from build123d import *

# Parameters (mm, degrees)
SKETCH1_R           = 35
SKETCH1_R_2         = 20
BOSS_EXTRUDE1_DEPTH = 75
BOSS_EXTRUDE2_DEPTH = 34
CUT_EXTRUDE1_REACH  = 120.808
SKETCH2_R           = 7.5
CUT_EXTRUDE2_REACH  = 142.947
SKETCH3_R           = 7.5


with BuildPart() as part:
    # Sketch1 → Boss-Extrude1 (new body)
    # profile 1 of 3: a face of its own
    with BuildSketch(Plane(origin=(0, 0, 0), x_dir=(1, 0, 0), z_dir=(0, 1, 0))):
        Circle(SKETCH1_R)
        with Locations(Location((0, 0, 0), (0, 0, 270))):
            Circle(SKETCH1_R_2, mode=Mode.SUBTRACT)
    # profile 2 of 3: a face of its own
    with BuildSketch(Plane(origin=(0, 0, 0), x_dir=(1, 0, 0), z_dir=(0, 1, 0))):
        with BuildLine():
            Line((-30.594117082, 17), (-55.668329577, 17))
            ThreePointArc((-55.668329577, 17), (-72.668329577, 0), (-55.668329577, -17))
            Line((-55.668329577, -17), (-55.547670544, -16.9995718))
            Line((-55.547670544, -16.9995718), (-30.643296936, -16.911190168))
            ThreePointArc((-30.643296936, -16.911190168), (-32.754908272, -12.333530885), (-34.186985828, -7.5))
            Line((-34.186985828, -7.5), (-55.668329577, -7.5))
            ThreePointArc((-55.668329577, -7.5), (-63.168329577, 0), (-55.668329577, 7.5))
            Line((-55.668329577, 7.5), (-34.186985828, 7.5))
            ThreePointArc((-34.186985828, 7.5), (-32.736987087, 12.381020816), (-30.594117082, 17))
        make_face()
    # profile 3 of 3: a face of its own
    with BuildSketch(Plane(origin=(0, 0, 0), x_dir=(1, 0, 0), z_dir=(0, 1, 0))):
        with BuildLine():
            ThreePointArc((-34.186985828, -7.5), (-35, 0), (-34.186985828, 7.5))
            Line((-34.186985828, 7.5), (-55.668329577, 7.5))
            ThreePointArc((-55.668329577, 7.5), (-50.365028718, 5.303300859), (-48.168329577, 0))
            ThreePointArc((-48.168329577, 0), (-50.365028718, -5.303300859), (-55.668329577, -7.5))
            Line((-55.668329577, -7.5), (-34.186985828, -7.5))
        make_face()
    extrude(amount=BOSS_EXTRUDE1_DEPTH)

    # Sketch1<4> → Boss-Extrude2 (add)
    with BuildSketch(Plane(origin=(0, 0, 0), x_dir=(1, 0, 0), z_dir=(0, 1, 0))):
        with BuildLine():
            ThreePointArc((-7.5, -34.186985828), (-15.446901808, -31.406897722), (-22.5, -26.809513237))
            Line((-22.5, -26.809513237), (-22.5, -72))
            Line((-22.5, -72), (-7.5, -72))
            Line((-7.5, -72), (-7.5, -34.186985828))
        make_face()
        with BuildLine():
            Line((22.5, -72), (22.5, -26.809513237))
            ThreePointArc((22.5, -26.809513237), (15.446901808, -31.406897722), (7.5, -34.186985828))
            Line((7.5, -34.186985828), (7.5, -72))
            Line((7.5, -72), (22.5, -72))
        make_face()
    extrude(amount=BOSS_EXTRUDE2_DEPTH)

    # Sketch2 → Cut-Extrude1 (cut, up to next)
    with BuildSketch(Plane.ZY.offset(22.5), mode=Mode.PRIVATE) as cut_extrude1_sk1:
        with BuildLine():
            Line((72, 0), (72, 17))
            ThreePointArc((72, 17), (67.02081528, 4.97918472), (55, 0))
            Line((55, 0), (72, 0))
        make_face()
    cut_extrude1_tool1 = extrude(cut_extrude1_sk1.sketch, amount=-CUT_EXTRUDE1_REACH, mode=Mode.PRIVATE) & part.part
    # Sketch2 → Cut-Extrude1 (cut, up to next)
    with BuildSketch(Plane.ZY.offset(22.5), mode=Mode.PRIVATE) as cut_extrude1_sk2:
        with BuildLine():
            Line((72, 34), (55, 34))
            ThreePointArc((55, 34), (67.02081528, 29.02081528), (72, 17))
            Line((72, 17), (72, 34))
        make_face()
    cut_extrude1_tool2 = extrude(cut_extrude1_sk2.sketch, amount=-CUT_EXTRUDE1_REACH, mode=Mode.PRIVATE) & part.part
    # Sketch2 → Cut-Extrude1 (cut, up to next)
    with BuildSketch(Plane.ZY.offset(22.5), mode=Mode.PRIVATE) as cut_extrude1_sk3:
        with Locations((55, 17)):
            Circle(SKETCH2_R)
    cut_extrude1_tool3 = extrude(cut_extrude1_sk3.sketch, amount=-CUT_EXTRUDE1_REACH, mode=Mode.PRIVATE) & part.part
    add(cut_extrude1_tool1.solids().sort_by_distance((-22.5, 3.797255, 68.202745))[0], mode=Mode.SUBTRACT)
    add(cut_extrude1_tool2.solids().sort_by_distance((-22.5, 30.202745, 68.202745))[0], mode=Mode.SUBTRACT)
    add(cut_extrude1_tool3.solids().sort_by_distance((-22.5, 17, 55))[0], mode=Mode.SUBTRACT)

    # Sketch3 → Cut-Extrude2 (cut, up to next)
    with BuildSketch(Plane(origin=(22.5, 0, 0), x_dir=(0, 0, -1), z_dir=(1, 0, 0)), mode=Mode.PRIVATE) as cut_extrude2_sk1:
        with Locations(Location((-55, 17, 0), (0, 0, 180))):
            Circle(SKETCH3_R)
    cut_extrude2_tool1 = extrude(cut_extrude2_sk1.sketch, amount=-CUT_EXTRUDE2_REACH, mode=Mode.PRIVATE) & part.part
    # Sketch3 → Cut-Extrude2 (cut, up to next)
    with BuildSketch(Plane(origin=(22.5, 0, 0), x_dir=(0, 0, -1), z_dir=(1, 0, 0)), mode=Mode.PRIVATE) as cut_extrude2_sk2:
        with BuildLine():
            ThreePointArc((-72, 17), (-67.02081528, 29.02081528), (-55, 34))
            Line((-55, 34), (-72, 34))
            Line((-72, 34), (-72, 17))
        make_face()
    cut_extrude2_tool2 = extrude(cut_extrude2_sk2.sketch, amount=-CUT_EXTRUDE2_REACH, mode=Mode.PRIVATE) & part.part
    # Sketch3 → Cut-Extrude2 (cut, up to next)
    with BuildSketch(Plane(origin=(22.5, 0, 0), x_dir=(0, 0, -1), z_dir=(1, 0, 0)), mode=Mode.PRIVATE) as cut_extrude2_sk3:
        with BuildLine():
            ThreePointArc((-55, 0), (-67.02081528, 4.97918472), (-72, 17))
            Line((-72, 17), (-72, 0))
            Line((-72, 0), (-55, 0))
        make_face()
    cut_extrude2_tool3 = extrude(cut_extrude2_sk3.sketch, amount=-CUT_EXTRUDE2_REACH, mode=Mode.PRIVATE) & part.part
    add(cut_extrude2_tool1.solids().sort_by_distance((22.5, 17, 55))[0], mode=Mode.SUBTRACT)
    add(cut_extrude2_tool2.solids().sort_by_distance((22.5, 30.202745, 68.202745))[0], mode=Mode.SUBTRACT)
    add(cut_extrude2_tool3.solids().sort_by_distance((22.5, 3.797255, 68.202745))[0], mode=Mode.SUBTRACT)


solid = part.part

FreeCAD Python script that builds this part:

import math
import FreeCAD as App
import Part
import Sketcher

V = App.Vector

doc = App.newDocument("Part")
body = doc.addObject("PartDesign::Body", "Body")

sketch1 = doc.addObject("Sketcher::SketchObject", "Sketch")
body.addObject(sketch1)
sketch1.AttachmentSupport = (doc.XZ_Plane, [""])
sketch1.MapMode = "FlatFace"
sketch1.addGeometry([
    Part.LineSegment(V(-30.59, -17, 0), V(-55.67, -17, 0)),
    Part.ArcOfCircle(Part.Circle(V(-55.67, 0, 0), V(0, 0, 1), 17), math.radians(90), math.radians(270)),
    Part.LineSegment(V(-55.67, 17, 0), V(-55.55, 17, 0)),
    Part.LineSegment(V(-55.55, 17, 0), V(-30.64, 16.91, 0)),
    Part.ArcOfCircle(Part.Circle(V(0, 0, 0), V(0, 0, 1), 35), math.radians(-151), math.radians(151)),
    Part.Circle(V(0, 0, 0), V(0, 0, 1), 20),
    Part.ArcOfCircle(Part.Circle(V(-55.67, 0, 0), V(0, 0, 1), 7.5), math.radians(90), math.radians(270)),
    Part.ArcOfCircle(Part.Circle(V(-55.67, 0, 0), V(0, 0, 1), 7.5), math.radians(-90), math.radians(0)),
    Part.ArcOfCircle(Part.Circle(V(-55.67, 0, 0), V(0, 0, 1), 7.5), math.radians(0), math.radians(90)),
], False)
sketch1.addConstraint([
    Sketcher.Constraint("Tangent", 0, 2, 1, 2),
    Sketcher.Constraint("Coincident", 1, 1, 2, 1),
    Sketcher.Constraint("Coincident", 2, 2, 3, 1),
    Sketcher.Constraint("Coincident", 3, 2, 4, 2),
    Sketcher.Constraint("Coincident", 4, 1, 0, 1),
    Sketcher.Constraint("Tangent", 6, 2, 7, 1),
    Sketcher.Constraint("Tangent", 7, 2, 8, 1),
    Sketcher.Constraint("Tangent", 8, 2, 6, 1),
    Sketcher.Constraint("Horizontal", 0),
    Sketcher.Constraint("Coincident", 4, 3, -1, 1),
    Sketcher.Constraint("Coincident", 5, 3, -1, 1),
    Sketcher.Constraint("Coincident", 6, 3, 1, 3),
    Sketcher.Constraint("Symmetric", 0, 2, 1, 1, -1),
    Sketcher.Constraint("PointOnObject", 7, 2, -1),
    Sketcher.Constraint("Parallel", 2, 3),
    Sketcher.Constraint("Vertical", 1, 1, 6, 2),
    Sketcher.Constraint("Vertical", 6, 2, 8, 2),
    Sketcher.Constraint("Diameter", 5, 40.0),
    Sketcher.Constraint("Radius", 1, 17.0),
    Sketcher.Constraint("Radius", 4, 35.0),
    Sketcher.Constraint("Radius", 6, 7.5),
    Sketcher.Constraint("Distance", 2, 0.12066),
    Sketcher.Constraint("Distance", 3, 24.90453),
    Sketcher.Constraint("DistanceX", 0, 2, 0, 1, 25.074212),
])
pad1 = doc.addObject("PartDesign::Pad", "Pad")
body.addObject(pad1)
pad1.Profile = sketch1
pad1.Length = 75
pad1.Reversed = True

sketch2 = doc.addObject("Sketcher::SketchObject", "Sketch001")
body.addObject(sketch2)
sketch2.AttachmentSupport = (doc.XZ_Plane, [""])
sketch2.MapMode = "FlatFace"
sketch2.addGeometry([
    Part.ArcOfCircle(Part.Circle(V(0, 0, 0), V(0, 0, 1), 35), math.radians(102), math.radians(130)),
    Part.LineSegment(V(-22, 27, 0), V(-22, 72, 0)),
    Part.LineSegment(V(-22, 72, 0), V(-8, 72, 0)),
    Part.LineSegment(V(-8, 72, 0), V(-8, 34, 0)),
    Part.LineSegment(V(22, 72, 0), V(22, 27, 0)),
    Part.ArcOfCircle(Part.Circle(V(0, 0, 0), V(0, 0, 1), 35), math.radians(50), math.radians(78)),
    Part.LineSegment(V(8, 34, 0), V(8, 72, 0)),
    Part.LineSegment(V(8, 72, 0), V(22, 72, 0)),
], False)
sketch2.addConstraint([
    Sketcher.Constraint("Coincident", 0, 2, 1, 1),
    Sketcher.Constraint("Coincident", 1, 2, 2, 1),
    Sketcher.Constraint("Coincident", 2, 2, 3, 1),
    Sketcher.Constraint("Coincident", 3, 2, 0, 1),
    Sketcher.Constraint("Coincident", 4, 2, 5, 1),
    Sketcher.Constraint("Coincident", 5, 2, 6, 1),
    Sketcher.Constraint("Coincident", 6, 2, 7, 1),
    Sketcher.Constraint("Coincident", 7, 2, 4, 1),
    Sketcher.Constraint("Vertical", 1),
    Sketcher.Constraint("Horizontal", 2),
    Sketcher.Constraint("Vertical", 3),
    Sketcher.Constraint("Vertical", 4),
    Sketcher.Constraint("Vertical", 6),
    Sketcher.Constraint("Horizontal", 7),
    Sketcher.Constraint("Coincident", 0, 3, -1, 1),
    Sketcher.Constraint("Coincident", 5, 3, -1, 1),
    Sketcher.Constraint("Equal", 0, 5),
    Sketcher.Constraint("Symmetric", 2, 2, 6, 2, -2),
    Sketcher.Constraint("Horizontal", 0, 2, 4, 2),
    Sketcher.Constraint("Radius", 0, 35.0),
    Sketcher.Constraint("DistanceX", 2, 1, 2, 2, 15.0),
    Sketcher.Constraint("DistanceY", -1, 1, 1, 2, 72.0),
    Sketcher.Constraint("DistanceX", 3, 2, 4, 2, 30.0),
])
pad2 = doc.addObject("PartDesign::Pad", "Pad001")
body.addObject(pad2)
pad2.Profile = sketch2
pad2.Length = 34
pad2.Reversed = True

sketch3 = doc.addObject("Sketcher::SketchObject", "Sketch002")
body.addObject(sketch3)
sketch3.AttachmentSupport = (doc.YZ_Plane, [""])
sketch3.MapMode = "FlatFace"
sketch3.AttachmentOffset = App.Placement(V(0, 0, -22.5), App.Rotation())
sketch3.addGeometry([
    Part.LineSegment(V(0, 72, 0), V(17, 72, 0)),
    Part.ArcOfCircle(Part.Circle(V(17, 55, 0), V(0, 0, 1), 17), math.radians(90), math.radians(180)),
    Part.LineSegment(V(0, 55, 0), V(0, 72, 0)),
], False)
sketch3.addConstraint([
    Sketcher.Constraint("Tangent", 0, 2, 1, 1),
    Sketcher.Constraint("Tangent", 1, 2, 2, 1),
    Sketcher.Constraint("Coincident", 2, 2, 0, 1),
    Sketcher.Constraint("Horizontal", 0),
    Sketcher.Constraint("Vertical", 2),
    Sketcher.Constraint("PointOnObject", 1, 2, -2),
    Sketcher.Constraint("Radius", 1, 17.0),
    Sketcher.Constraint("DistanceY", -1, 1, 1, 3, 55.0),
])
pocket1 = doc.addObject("PartDesign::Pocket", "Pocket")
body.addObject(pocket1)
pocket1.Profile = sketch3
pocket1.Type = "UpToFirst"
pocket1.Reversed = True

sketch4 = doc.addObject("Sketcher::SketchObject", "Sketch003")
body.addObject(sketch4)
sketch4.AttachmentSupport = (doc.YZ_Plane, [""])
sketch4.MapMode = "FlatFace"
sketch4.AttachmentOffset = App.Placement(V(0, 0, -22.5), App.Rotation())
sketch4.addGeometry([
    Part.LineSegment(V(34, 72, 0), V(34, 55, 0)),
    Part.ArcOfCircle(Part.Circle(V(17, 55, 0), V(0, 0, 1), 17), math.radians(0), math.radians(90)),
    Part.LineSegment(V(17, 72, 0), V(34, 72, 0)),
], False)
sketch4.addConstraint([
    Sketcher.Constraint("Tangent", 0, 2, 1, 1),
    Sketcher.Constraint("Tangent", 1, 2, 2, 1),
    Sketcher.Constraint("Coincident", 2, 2, 0, 1),
    Sketcher.Constraint("Vertical", 0),
    Sketcher.Constraint("Horizontal", 2),
    Sketcher.Constraint("Radius", 1, 17.0),
    Sketcher.Constraint("DistanceX", -1, 1, 1, 3, 17.0),
    Sketcher.Constraint("DistanceY", -1, 1, 1, 3, 55.0),
])
pocket2 = doc.addObject("PartDesign::Pocket", "Pocket001")
body.addObject(pocket2)
pocket2.Profile = sketch4
pocket2.Type = "UpToFirst"
pocket2.Reversed = True

sketch5 = doc.addObject("Sketcher::SketchObject", "Sketch004")
body.addObject(sketch5)
sketch5.AttachmentSupport = (doc.YZ_Plane, [""])
sketch5.MapMode = "FlatFace"
sketch5.AttachmentOffset = App.Placement(V(0, 0, -22.5), App.Rotation())
sketch5.addGeometry(Part.Circle(V(17, 55, 0), V(0, 0, 1), 8), False)
sketch5.addConstraint([
    Sketcher.Constraint("Diameter", 0, 15.0),
    Sketcher.Constraint("DistanceX", -1, 1, 0, 3, 17.0),
    Sketcher.Constraint("DistanceY", -1, 1, 0, 3, 55.0),
])
pocket3 = doc.addObject("PartDesign::Pocket", "Pocket002")
body.addObject(pocket3)
pocket3.Profile = sketch5
pocket3.Type = "UpToFirst"
pocket3.Reversed = True

sketch6 = doc.addObject("Sketcher::SketchObject", "Sketch005")
body.addObject(sketch6)
sketch6.AttachmentSupport = (doc.YZ_Plane, [""])
sketch6.MapMode = "FlatFace"
sketch6.AttachmentOffset = App.Placement(V(0, 0, 22.5), App.Rotation())
sketch6.addGeometry(Part.Circle(V(17, 55, 0), V(0, 0, 1), 8), False)
sketch6.addConstraint([
    Sketcher.Constraint("Diameter", 0, 15.0),
    Sketcher.Constraint("DistanceX", -1, 1, 0, 3, 17.0),
    Sketcher.Constraint("DistanceY", -1, 1, 0, 3, 55.0),
])
pocket4 = doc.addObject("PartDesign::Pocket", "Pocket003")
body.addObject(pocket4)
pocket4.Profile = sketch6
pocket4.Type = "UpToFirst"

sketch7 = doc.addObject("Sketcher::SketchObject", "Sketch006")
body.addObject(sketch7)
sketch7.AttachmentSupport = (doc.YZ_Plane, [""])
sketch7.MapMode = "FlatFace"
sketch7.AttachmentOffset = App.Placement(V(0, 0, 22.5), App.Rotation())
sketch7.addGeometry([
    Part.ArcOfCircle(Part.Circle(V(17, 55, 0), V(0, 0, 1), 17), math.radians(0), math.radians(90)),
    Part.LineSegment(V(34, 55, 0), V(34, 72, 0)),
    Part.LineSegment(V(34, 72, 0), V(17, 72, 0)),
], False)
sketch7.addConstraint([
    Sketcher.Constraint("Tangent", 0, 1, 1, 1),
    Sketcher.Constraint("Coincident", 1, 2, 2, 1),
    Sketcher.Constraint("Tangent", 2, 2, 0, 2),
    Sketcher.Constraint("Vertical", 1),
    Sketcher.Constraint("Horizontal", 2),
    Sketcher.Constraint("Radius", 0, 17.0),
    Sketcher.Constraint("DistanceX", -1, 1, 0, 3, 17.0),
    Sketcher.Constraint("DistanceY", -1, 1, 0, 3, 55.0),
])
pocket5 = doc.addObject("PartDesign::Pocket", "Pocket004")
body.addObject(pocket5)
pocket5.Profile = sketch7
pocket5.Type = "UpToFirst"

sketch8 = doc.addObject("Sketcher::SketchObject", "Sketch007")
body.addObject(sketch8)
sketch8.AttachmentSupport = (doc.YZ_Plane, [""])
sketch8.MapMode = "FlatFace"
sketch8.AttachmentOffset = App.Placement(V(0, 0, 22.5), App.Rotation())
sketch8.addGeometry([
    Part.ArcOfCircle(Part.Circle(V(17, 55, 0), V(0, 0, 1), 17), math.radians(90), math.radians(180)),
    Part.LineSegment(V(17, 72, 0), V(0, 72, 0)),
    Part.LineSegment(V(0, 72, 0), V(0, 55, 0)),
], False)
sketch8.addConstraint([
    Sketcher.Constraint("Tangent", 0, 1, 1, 1),
    Sketcher.Constraint("Coincident", 1, 2, 2, 1),
    Sketcher.Constraint("Tangent", 2, 2, 0, 2),
    Sketcher.Constraint("Horizontal", 1),
    Sketcher.Constraint("Vertical", 2),
    Sketcher.Constraint("PointOnObject", 1, 2, -2),
    Sketcher.Constraint("Radius", 0, 17.0),
    Sketcher.Constraint("DistanceY", -1, 1, 0, 3, 55.0),
])
pocket6 = doc.addObject("PartDesign::Pocket", "Pocket005")
body.addObject(pocket6)
pocket6.Profile = sketch8
pocket6.Type = "UpToFirst"

doc.recompute()
